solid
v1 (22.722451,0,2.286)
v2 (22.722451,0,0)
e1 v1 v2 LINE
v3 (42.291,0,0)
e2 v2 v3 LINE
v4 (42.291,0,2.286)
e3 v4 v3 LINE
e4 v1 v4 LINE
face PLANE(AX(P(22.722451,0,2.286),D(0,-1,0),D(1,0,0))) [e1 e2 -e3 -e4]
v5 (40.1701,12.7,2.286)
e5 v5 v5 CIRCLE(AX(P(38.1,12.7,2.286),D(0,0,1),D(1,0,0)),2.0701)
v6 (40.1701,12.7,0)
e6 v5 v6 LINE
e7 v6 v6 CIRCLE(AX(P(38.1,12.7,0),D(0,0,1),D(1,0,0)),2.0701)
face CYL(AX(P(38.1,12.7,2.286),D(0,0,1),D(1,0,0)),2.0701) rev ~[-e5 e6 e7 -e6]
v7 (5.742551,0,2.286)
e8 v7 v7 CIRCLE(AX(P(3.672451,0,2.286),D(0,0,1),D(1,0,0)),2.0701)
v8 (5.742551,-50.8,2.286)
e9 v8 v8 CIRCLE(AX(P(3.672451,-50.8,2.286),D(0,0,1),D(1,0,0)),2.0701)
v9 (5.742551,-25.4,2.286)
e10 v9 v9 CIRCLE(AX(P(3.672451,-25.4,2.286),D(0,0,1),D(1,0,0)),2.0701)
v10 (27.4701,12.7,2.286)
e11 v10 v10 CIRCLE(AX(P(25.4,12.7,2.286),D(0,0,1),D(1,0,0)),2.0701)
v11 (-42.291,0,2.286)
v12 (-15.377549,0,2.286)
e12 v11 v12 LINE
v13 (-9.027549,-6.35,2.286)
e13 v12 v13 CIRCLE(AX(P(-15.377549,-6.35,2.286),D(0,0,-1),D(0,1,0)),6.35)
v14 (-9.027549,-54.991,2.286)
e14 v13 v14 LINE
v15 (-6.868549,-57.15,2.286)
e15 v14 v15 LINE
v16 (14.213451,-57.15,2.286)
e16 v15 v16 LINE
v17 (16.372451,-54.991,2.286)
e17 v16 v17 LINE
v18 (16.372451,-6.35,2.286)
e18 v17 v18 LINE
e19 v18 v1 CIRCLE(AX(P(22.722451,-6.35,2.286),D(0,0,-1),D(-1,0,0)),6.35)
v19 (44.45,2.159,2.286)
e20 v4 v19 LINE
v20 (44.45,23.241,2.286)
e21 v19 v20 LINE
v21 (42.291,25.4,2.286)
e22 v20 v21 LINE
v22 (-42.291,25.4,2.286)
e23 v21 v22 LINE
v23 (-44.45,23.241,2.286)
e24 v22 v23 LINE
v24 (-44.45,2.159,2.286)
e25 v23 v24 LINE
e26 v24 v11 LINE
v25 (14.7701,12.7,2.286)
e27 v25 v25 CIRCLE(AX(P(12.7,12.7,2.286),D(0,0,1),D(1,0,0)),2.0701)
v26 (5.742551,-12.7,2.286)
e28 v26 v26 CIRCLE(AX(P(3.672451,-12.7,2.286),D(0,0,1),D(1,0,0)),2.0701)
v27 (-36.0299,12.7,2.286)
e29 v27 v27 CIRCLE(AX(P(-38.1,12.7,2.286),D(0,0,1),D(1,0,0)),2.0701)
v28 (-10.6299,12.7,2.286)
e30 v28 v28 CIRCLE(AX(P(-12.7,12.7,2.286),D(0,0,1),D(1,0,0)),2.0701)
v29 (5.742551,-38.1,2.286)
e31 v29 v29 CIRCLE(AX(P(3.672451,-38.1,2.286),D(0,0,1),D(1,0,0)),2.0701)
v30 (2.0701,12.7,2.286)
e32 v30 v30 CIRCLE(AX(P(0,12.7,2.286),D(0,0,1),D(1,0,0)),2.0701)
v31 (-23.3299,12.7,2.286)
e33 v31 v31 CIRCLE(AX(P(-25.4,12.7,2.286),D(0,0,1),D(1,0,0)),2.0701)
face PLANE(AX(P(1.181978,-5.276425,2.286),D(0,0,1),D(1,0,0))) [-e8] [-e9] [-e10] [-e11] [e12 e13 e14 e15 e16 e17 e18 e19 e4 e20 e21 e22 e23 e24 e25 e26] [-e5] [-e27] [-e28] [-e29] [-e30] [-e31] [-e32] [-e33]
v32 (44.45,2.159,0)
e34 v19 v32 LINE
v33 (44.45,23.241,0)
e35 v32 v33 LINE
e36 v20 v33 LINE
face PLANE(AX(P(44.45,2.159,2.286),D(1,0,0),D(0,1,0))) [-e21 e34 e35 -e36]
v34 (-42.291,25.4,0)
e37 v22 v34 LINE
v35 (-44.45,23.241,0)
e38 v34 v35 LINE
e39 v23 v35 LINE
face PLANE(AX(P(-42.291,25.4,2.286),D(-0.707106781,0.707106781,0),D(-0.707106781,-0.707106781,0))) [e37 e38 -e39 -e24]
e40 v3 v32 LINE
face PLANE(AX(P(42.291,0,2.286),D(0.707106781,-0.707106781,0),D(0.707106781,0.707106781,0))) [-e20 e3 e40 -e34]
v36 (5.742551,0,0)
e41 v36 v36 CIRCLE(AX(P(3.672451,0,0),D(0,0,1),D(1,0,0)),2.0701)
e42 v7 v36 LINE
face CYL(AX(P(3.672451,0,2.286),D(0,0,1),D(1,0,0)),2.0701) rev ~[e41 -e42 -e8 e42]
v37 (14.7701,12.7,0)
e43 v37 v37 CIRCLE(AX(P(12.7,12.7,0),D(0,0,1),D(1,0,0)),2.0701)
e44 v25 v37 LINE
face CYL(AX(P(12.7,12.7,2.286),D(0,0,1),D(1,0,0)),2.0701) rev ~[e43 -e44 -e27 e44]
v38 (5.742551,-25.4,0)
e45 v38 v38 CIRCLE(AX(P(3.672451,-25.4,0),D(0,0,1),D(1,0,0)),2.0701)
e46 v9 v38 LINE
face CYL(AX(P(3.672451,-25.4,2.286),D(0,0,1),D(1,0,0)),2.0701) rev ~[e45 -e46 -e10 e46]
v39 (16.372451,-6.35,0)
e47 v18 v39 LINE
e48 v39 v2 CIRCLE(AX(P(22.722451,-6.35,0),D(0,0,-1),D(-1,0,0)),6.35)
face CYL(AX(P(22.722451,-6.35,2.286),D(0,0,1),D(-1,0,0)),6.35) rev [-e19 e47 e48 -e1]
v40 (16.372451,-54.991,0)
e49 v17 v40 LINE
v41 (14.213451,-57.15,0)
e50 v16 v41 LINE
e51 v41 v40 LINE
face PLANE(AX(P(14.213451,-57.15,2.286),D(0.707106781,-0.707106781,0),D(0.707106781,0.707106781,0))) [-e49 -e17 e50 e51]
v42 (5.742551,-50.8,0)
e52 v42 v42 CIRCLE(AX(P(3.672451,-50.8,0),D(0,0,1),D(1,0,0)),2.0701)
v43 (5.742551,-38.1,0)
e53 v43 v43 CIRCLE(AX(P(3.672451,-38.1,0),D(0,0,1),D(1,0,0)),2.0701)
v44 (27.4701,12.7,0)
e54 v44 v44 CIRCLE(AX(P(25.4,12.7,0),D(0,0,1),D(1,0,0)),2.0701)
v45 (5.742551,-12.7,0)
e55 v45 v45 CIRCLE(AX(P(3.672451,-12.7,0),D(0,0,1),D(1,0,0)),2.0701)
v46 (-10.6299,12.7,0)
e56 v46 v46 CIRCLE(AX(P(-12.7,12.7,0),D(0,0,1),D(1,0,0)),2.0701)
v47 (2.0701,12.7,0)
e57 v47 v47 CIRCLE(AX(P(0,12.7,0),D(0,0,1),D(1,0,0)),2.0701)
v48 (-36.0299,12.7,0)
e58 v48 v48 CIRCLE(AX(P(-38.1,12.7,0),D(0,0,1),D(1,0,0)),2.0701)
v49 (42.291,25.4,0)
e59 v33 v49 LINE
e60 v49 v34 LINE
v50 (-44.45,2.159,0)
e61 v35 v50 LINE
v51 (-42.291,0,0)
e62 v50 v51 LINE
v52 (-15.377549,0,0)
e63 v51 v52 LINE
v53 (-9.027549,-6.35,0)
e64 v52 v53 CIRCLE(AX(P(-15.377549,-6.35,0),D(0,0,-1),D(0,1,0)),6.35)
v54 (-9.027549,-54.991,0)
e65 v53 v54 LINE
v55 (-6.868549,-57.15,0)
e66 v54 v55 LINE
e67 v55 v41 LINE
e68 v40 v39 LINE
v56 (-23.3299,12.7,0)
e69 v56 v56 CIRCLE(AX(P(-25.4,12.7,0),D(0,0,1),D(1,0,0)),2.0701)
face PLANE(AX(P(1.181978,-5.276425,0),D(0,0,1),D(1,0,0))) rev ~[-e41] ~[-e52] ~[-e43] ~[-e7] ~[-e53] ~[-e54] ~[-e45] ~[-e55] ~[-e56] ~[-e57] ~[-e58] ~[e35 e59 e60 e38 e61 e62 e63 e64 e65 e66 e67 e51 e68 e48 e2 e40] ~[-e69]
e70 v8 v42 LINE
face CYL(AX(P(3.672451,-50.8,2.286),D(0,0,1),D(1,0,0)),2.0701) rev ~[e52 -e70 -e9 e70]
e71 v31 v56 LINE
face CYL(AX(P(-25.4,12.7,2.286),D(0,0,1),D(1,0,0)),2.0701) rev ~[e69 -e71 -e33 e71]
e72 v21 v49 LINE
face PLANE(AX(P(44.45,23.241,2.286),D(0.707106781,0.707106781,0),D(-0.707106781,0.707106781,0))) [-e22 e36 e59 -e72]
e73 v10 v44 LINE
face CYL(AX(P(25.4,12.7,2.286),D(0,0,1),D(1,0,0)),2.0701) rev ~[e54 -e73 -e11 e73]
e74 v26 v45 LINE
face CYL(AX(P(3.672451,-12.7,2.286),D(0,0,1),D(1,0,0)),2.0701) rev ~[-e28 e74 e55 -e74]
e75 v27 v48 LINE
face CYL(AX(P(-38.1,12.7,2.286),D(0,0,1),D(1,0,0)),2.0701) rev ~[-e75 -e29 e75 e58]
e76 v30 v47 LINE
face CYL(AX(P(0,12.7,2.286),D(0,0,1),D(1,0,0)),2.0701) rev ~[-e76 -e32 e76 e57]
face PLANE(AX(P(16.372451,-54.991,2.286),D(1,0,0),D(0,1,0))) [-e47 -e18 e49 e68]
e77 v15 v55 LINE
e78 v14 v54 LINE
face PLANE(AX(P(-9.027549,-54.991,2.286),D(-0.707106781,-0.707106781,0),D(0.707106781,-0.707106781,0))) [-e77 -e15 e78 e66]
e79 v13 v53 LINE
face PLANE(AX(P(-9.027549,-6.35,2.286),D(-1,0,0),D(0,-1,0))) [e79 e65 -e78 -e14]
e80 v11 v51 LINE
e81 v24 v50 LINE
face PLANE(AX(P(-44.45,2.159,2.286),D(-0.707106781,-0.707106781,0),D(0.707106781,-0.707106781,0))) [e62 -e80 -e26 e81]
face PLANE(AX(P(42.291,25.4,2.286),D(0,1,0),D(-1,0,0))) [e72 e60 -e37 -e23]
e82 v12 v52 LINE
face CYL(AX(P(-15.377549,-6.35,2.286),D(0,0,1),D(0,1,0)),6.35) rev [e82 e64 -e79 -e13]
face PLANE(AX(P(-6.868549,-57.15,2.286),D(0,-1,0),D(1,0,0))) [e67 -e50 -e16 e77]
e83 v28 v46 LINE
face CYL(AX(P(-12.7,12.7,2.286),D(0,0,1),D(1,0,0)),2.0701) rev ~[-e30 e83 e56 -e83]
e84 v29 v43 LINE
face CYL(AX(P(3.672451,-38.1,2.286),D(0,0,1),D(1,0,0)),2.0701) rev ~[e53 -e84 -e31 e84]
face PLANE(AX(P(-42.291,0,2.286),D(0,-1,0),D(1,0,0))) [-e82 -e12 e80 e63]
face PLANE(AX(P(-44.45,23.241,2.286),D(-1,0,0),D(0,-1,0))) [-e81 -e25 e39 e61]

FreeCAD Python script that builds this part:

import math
import FreeCAD as App
import Part
import Sketcher
from FreeCAD import Vector
Q = App.Units.Quantity

doc = App.newDocument("Part")
body = doc.addObject("PartDesign::Body", "Body")

# Sketch on XY plane
sketch1 = body.newObject("Sketcher::SketchObject", "Sketch")
sketch1.AttachmentSupport = (doc.getObject("XY_Plane"), [""])
sketch1.MapMode = "FlatFace"
sketch1.AttachmentOffset = App.Placement(Vector(0, 0, 0.09 * 25.4), App.Rotation())
sketch1.addGeometry([
    Part.LineSegment(Vector(16.4, -55, 0), Vector(16.4, -6.3, 0)),  # 0
    Part.ArcOfCircle(Part.Circle(Vector(22.7, -6.3, 0), Vector(0, 0, 1), 6.3), math.radians(90), math.radians(180)),  # 1
    Part.LineSegment(Vector(22.7, 0, 0), Vector(42.3, 0, 0)),  # 2
    Part.LineSegment(Vector(42.3, 0, 0), Vector(44.5, 2.2, 0)),  # 3
    Part.LineSegment(Vector(44.5, 2.2, 0), Vector(44.5, 23.2, 0)),  # 4
    Part.LineSegment(Vector(44.5, 23.2, 0), Vector(42.3, 25.4, 0)),  # 5
    Part.LineSegment(Vector(42.3, 25.4, 0), Vector(-42.3, 25.4, 0)),  # 6
    Part.LineSegment(Vector(-42.3, 25.4, 0), Vector(-44.5, 23.2, 0)),  # 7
    Part.LineSegment(Vector(-44.5, 23.2, 0), Vector(-44.5, 2.2, 0)),  # 8
    Part.LineSegment(Vector(-44.5, 2.2, 0), Vector(-42.3, 0, 0)),  # 9
    Part.LineSegment(Vector(-42.3, 0, 0), Vector(-15.4, 0, 0)),  # 10
    Part.ArcOfCircle(Part.Circle(Vector(-15.4, -6.3, 0), Vector(0, 0, 1), 6.3), math.radians(0), math.radians(90)),  # 11
    Part.LineSegment(Vector(-9, -6.3, 0), Vector(-9, -55, 0)),  # 12
    Part.LineSegment(Vector(-9, -55, 0), Vector(-6.9, -57.1, 0)),  # 13
    Part.LineSegment(Vector(-6.9, -57.1, 0), Vector(14.2, -57.1, 0)),  # 14
    Part.LineSegment(Vector(14.2, -57.1, 0), Vector(16.4, -55, 0)),  # 15
    Part.Circle(Vector(3.7, -50.8, 0), Vector(0, 0, 1), 2.1),  # 16
    Part.Circle(Vector(3.7, -38.1, 0), Vector(0, 0, 1), 2.1),  # 17
    Part.Circle(Vector(3.7, -25.4, 0), Vector(0, 0, 1), 2.1),  # 18
    Part.Circle(Vector(-38.1, 12.7, 0), Vector(0, 0, 1), 2.1),  # 19
    Part.Circle(Vector(-25.4, 12.7, 0), Vector(0, 0, 1), 2.1),  # 20
    Part.Circle(Vector(-12.7, 12.7, 0), Vector(0, 0, 1), 2.1),  # 21
    Part.Circle(Vector(3.7, -12.7, 0), Vector(0, 0, 1), 2.1),  # 22
    Part.Circle(Vector(3.7, 0, 0), Vector(0, 0, 1), 2.1),  # 23
    Part.Circle(Vector(0, 12.7, 0), Vector(0, 0, 1), 2.1),  # 24
    Part.Circle(Vector(12.7, 12.7, 0), Vector(0, 0, 1), 2.1),  # 25
    Part.Circle(Vector(25.4, 12.7, 0), Vector(0, 0, 1), 2.1),  # 26
    Part.Circle(Vector(38.1, 12.7, 0), Vector(0, 0, 1), 2.1),  # 27
], False)
sketch1.addConstraint([
    Sketcher.Constraint("Tangent", 0, 2, 1, 2),
    Sketcher.Constraint("Tangent", 1, 1, 2, 1),
    Sketcher.Constraint("Coincident", 2, 2, 3, 1),
    Sketcher.Constraint("Coincident", 3, 2, 4, 1),
    Sketcher.Constraint("Coincident", 4, 2, 5, 1),
    Sketcher.Constraint("Coincident", 5, 2, 6, 1),
    Sketcher.Constraint("Coincident", 6, 2, 7, 1),
    Sketcher.Constraint("Coincident", 7, 2, 8, 1),
    Sketcher.Constraint("Coincident", 8, 2, 9, 1),
    Sketcher.Constraint("Coincident", 9, 2, 10, 1),
    Sketcher.Constraint("Tangent", 10, 2, 11, 2),
    Sketcher.Constraint("Tangent", 11, 1, 12, 1),
    Sketcher.Constraint("Coincident", 12, 2, 13, 1),
    Sketcher.Constraint("Coincident", 13, 2, 14, 1),
    Sketcher.Constraint("Coincident", 14, 2, 15, 1),
    Sketcher.Constraint("Coincident", 15, 2, 0, 1),
    Sketcher.Constraint("Vertical", 0),
    Sketcher.Constraint("Horizontal", 2),
    Sketcher.Constraint("Vertical", 4),
    Sketcher.Constraint("Horizontal", 6),
    Sketcher.Constraint("Vertical", 8),
    Sketcher.Constraint("Horizontal", 10),
    Sketcher.Constraint("Vertical", 12),
    Sketcher.Constraint("Horizontal", 14),
    Sketcher.Constraint("Equal", 1, 11),
    Sketcher.Constraint("Equal", 16, 17),
    Sketcher.Constraint("Equal", 17, 18),
    Sketcher.Constraint("Equal", 18, 19),
    Sketcher.Constraint("Equal", 19, 20),
    Sketcher.Constraint("Equal", 20, 21),
    Sketcher.Constraint("Equal", 21, 22),
    Sketcher.Constraint("Equal", 22, 23),
    Sketcher.Constraint("Equal", 23, 24),
    Sketcher.Constraint("Equal", 24, 25),
    Sketcher.Constraint("Equal", 25, 26),
    Sketcher.Constraint("Equal", 26, 27),
    Sketcher.Constraint("Symmetric", 2, 2, 9, 2, -1, 1),
    Sketcher.Constraint("Symmetric", 21, 3, 25, 3, -2),
    Sketcher.Constraint("Symmetric", 20, 3, 26, 3, -2),
    Sketcher.Constraint("Symmetric", 19, 3, 27, 3, -2),
    Sketcher.Constraint("Symmetric", 4, 2, 7, 2, -2),
    Sketcher.Constraint("PointOnObject", 23, 3, -1),
    Sketcher.Constraint("PointOnObject", 24, 3, -2),
    Sketcher.Constraint("PointOnObject", 1, 1, -1),
    Sketcher.Constraint("Perpendicular", 3, 5),
    Sketcher.Constraint("Perpendicular", 5, 7),
    Sketcher.Constraint("Perpendicular", 7, 9),
    Sketcher.Constraint("Parallel", 9, 13),
    Sketcher.Constraint("Perpendicular", 13, 15),
    Sketcher.Constraint("Horizontal", 19, 3, 20, 3),
    Sketcher.Constraint("Horizontal", 20, 3, 21, 3),
    Sketcher.Constraint("Horizontal", 21, 3, 24, 3),
    Sketcher.Constraint("Horizontal", 3, 2, 8, 2),
    Sketcher.Constraint("Horizontal", 12, 2, 15, 2),
    Sketcher.Constraint("Vertical", 16, 3, 17, 3),
    Sketcher.Constraint("Vertical", 17, 3, 18, 3),
    Sketcher.Constraint("Vertical", 18, 3, 22, 3),
    Sketcher.Constraint("Vertical", 22, 3, 23, 3),
    Sketcher.Constraint("Vertical", 2, 2, 5, 2),
    Sketcher.Constraint("Equal", 14, 4),
    Sketcher.Constraint("Equal", 9, 13),
    Sketcher.Constraint("Radius", 1, Q("0.25 in")),
    Sketcher.Constraint("Diameter", 16, Q("0.163 in")),
    Sketcher.Constraint("DistanceY", 16, 3, -1, 1, Q("2 in")),
    Sketcher.Constraint("DistanceY", 18, 3, -1, 1, Q("1 in")),
    Sketcher.Constraint("DistanceX", 20, 3, -1, 1, Q("1 in")),
    Sketcher.Constraint("DistanceY", -1, 1, 5, 2, Q("1 in")),
    Sketcher.Constraint("DistanceY", 17, 3, 19, 3, Q("2 in")),
    Sketcher.Constraint("DistanceX", 19, 3, 21, 3, Q("1 in")),
    Sketcher.Constraint("DistanceY", 17, 3, 22, 3, Q("1 in")),
    Sketcher.Constraint("DistanceX", 21, 3, 25, 3, Q("1 in")),
    Sketcher.Constraint("DistanceX", 6, 2, 6, 1, Q("3.33 in")),
    Sketcher.Constraint("DistanceX", 14, 1, 14, 2, Q("0.83 in")),
    Sketcher.Constraint("DistanceY", 17, 3, -1, 1, Q("1.5 in")),
    Sketcher.Constraint("DistanceX", 22, 3, 0, 2, Q("0.5 in")),
    Sketcher.Constraint("DistanceY", 0, 1, 0, 2, Q("1.915 in")),
    Sketcher.Constraint("DistanceX", 2, 1, 2, 2, Q("19.568549 mm")),
])
pad1 = body.newObject("PartDesign::Pad", "Pad")
pad1.Profile = sketch1
pad1.Length = Q("0.09 in")
pad1.Reversed = True

doc.recompute()
